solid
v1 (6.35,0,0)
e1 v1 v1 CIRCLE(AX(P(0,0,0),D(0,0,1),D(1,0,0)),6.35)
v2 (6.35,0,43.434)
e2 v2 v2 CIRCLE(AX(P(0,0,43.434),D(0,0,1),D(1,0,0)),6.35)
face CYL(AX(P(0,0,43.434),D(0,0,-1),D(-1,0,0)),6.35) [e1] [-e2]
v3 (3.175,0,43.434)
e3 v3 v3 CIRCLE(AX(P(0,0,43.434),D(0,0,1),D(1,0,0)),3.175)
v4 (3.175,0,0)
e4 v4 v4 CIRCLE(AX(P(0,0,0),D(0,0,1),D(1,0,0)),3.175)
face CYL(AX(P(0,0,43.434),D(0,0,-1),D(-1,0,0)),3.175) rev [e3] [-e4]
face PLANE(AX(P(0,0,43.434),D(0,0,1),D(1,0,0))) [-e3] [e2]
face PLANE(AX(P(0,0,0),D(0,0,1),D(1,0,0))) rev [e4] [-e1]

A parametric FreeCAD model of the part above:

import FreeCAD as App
import Part
import Sketcher

V = App.Vector
Q = App.Units.Quantity

doc = App.newDocument("Part")
body = doc.addObject("PartDesign::Body", "Body")

sketch1 = body.newObject("Sketcher::SketchObject", "Sketch")
sketch1.AttachmentSupport = (doc.getObject("XY_Plane"), [""])
sketch1.MapMode = "FlatFace"
sketch1.addGeometry([
    Part.Circle(V(0, 0, 0), V(0, 0, 1), 6.35),
    Part.Circle(V(0, 0, 0), V(0, 0, 1), 3.175),
], False)
sketch1.addConstraint([
    Sketcher.Constraint("Coincident", 0, 3, -1, 1),
    Sketcher.Constraint("Coincident", 1, 3, -1, 1),
    Sketcher.Constraint("Diameter", 0, Q("0.5 in")),
    Sketcher.Constraint("Diameter", 1, Q("0.25 in")),
])
pad1 = body.newObject("PartDesign::Pad", "Pad")
pad1.Profile = sketch1
pad1.Length = Q("1.71 in")

doc.recompute()
